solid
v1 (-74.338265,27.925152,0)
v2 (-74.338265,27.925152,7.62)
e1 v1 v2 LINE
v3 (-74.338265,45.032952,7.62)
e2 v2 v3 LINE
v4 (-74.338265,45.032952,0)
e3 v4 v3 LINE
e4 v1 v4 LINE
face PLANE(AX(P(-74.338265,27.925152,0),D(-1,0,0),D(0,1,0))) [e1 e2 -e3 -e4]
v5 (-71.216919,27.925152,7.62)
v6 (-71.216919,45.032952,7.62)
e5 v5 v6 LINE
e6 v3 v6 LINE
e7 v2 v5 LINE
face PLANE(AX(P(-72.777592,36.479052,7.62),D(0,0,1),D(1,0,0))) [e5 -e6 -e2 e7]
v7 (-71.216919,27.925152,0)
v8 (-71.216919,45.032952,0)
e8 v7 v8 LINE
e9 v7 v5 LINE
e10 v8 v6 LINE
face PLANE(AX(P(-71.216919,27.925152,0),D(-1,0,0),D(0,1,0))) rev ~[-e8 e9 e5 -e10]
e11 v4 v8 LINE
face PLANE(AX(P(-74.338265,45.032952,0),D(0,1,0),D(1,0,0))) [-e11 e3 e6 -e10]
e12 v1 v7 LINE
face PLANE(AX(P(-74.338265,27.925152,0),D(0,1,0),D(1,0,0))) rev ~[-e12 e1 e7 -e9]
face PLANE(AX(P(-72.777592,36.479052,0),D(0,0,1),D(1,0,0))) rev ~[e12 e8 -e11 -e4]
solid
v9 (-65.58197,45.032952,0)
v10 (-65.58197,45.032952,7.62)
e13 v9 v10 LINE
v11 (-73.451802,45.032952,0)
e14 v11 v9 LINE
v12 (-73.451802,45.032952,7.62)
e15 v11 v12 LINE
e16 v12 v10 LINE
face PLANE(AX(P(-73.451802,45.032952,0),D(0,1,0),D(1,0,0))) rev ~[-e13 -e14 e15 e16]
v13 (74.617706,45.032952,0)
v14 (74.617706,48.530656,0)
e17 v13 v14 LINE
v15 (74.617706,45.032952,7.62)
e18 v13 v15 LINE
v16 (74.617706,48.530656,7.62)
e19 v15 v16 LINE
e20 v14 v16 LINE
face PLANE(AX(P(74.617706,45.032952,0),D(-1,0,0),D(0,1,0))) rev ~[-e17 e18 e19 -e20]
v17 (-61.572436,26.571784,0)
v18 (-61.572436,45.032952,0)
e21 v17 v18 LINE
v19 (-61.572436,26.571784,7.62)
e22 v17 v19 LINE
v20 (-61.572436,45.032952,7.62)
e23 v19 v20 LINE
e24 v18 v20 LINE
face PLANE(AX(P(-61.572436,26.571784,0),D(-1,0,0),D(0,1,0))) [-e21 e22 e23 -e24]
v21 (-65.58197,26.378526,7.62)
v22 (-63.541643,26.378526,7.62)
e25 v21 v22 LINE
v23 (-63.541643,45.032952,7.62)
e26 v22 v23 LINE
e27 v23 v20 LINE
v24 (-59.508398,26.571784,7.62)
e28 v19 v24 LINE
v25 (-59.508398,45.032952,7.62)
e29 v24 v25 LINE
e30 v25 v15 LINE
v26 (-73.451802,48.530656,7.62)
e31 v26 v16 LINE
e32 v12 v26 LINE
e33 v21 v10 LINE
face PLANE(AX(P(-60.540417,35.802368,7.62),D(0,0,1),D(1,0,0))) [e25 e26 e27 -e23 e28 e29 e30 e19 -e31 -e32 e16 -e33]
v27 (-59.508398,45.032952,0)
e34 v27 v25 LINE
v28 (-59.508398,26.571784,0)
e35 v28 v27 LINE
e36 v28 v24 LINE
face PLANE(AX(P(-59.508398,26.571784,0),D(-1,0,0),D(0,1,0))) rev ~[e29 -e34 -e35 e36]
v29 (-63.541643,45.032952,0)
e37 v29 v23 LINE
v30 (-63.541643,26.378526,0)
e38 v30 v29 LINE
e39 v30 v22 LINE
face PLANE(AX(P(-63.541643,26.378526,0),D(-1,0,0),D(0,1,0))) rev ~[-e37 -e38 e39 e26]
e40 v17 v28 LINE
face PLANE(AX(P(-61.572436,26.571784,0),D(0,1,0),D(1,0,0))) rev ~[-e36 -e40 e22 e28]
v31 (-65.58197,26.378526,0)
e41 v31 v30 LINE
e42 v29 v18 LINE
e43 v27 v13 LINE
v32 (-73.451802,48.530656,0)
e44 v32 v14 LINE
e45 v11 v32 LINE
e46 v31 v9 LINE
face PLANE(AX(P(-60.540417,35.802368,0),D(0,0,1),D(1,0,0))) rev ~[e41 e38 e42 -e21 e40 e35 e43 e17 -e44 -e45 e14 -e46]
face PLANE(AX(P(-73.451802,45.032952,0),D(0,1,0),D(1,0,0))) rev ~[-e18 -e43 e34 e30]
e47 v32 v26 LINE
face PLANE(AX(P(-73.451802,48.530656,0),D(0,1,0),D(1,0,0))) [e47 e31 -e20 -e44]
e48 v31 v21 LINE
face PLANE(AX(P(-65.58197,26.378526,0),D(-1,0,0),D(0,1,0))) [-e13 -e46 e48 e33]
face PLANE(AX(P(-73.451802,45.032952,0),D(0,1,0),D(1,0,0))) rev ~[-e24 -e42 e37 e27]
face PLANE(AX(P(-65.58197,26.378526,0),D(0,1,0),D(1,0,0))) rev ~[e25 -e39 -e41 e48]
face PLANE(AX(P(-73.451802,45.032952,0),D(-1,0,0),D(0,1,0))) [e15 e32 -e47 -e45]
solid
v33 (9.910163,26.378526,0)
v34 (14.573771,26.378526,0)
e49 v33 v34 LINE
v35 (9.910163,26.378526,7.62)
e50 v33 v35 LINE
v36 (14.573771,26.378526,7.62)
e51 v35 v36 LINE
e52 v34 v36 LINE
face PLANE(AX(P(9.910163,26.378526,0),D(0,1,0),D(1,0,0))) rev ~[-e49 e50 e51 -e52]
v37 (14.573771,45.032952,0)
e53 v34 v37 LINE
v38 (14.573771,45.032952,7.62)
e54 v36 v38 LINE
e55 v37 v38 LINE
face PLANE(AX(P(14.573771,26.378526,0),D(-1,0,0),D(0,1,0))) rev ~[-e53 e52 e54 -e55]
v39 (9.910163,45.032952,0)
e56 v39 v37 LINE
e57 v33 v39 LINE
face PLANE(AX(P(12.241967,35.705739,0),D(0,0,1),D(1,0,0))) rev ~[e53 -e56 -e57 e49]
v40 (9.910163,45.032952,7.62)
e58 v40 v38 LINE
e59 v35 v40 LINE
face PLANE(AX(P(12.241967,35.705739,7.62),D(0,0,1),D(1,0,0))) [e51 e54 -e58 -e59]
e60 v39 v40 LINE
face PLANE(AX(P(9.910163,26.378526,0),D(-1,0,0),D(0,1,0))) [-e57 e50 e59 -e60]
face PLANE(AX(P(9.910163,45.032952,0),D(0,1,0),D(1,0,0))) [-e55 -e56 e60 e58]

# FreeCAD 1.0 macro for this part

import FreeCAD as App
import Part
import Sketcher

V = App.Vector
Q = App.Units.Quantity

doc = App.newDocument("Part")
body = doc.addObject("PartDesign::Body", "Body")

# Sketch on XY plane
sketch1 = body.newObject("Sketcher::SketchObject", "Sketch")
sketch1.AttachmentSupport = (doc.getObject("XY_Plane"), [""])
sketch1.MapMode = "FlatFace"
sketch1.addGeometry([
    Part.LineSegment(V(-73.451802, 48.530656, 0), V(-73.451802, 45.032952, 0)),
    Part.LineSegment(V(-73.451802, 45.032952, 0), V(74.617706, 45.032952, 0)),
    Part.LineSegment(V(74.617706, 45.032952, 0), V(74.617706, 48.530656, 0)),
    Part.LineSegment(V(74.617706, 48.530656, 0), V(-73.451802, 48.530656, 0)),
], False)
sketch1.addConstraint([
    Sketcher.Constraint("Coincident", 0, 2, 1, 1),
    Sketcher.Constraint("Coincident", 1, 2, 2, 1),
    Sketcher.Constraint("Coincident", 2, 2, 3, 1),
    Sketcher.Constraint("Coincident", 3, 2, 0, 1),
    Sketcher.Constraint("Vertical", 0),
    Sketcher.Constraint("Horizontal", 1),
    Sketcher.Constraint("Vertical", 2),
    Sketcher.Constraint("Horizontal", 3),
    Sketcher.Constraint("DistanceX", 0, 2, -1, 1, Q("73.451802 mm")),
    Sketcher.Constraint("DistanceX", 1, 1, 1, 2, Q("148.069508 mm")),
    Sketcher.Constraint("DistanceY", 0, 2, 0, 1, Q("3.497705 mm")),
    Sketcher.Constraint("DistanceY", -1, 1, 0, 2, Q("45.032952 mm")),
])
pad1 = body.newObject("PartDesign::Pad", "Pad")
pad1.Profile = sketch1
pad1.Length = Q("0.3 in")

# Sketch on XY plane
sketch2 = body.newObject("Sketcher::SketchObject", "Sketch001")
sketch2.AttachmentSupport = (doc.getObject("XY_Plane"), [""])
sketch2.MapMode = "FlatFace"
sketch2.addGeometry([
    Part.LineSegment(V(-65.58197, 45.032952, 0), V(-65.58197, 26.378526, 0)),
    Part.LineSegment(V(-65.58197, 26.378526, 0), V(-63.541643, 26.378526, 0)),
    Part.LineSegment(V(-63.541643, 26.378526, 0), V(-63.541643, 45.032952, 0)),
    Part.LineSegment(V(-63.541643, 45.032952, 0), V(-65.58197, 45.032952, 0)),
], False)
sketch2.addConstraint([
    Sketcher.Constraint("Coincident", 0, 2, 1, 1),
    Sketcher.Constraint("Coincident", 1, 2, 2, 1),
    Sketcher.Constraint("Coincident", 2, 2, 3, 1),
    Sketcher.Constraint("Coincident", 3, 2, 0, 1),
    Sketcher.Constraint("Vertical", 0),
    Sketcher.Constraint("Horizontal", 1),
    Sketcher.Constraint("Vertical", 2),
    Sketcher.Constraint("Horizontal", 3),
    Sketcher.Constraint("DistanceX", 1, 1, 1, 2, Q("2.040327 mm")),
    Sketcher.Constraint("DistanceY", 0, 2, 0, 1, Q("18.654425 mm")),
    Sketcher.Constraint("DistanceX", 0, 2, -1, 1, Q("65.58197 mm")),
    Sketcher.Constraint("DistanceY", -1, 1, 2, 2, Q("45.032952 mm")),
])
pad2 = body.newObject("PartDesign::Pad", "Pad001")
pad2.Profile = sketch2
pad2.Length = Q("0.3 in")

# Sketch on XY plane
sketch3 = body.newObject("Sketcher::SketchObject", "Sketch002")
sketch3.AttachmentSupport = (doc.getObject("XY_Plane"), [""])
sketch3.MapMode = "FlatFace"
sketch3.addGeometry([
    Part.LineSegment(V(-61.572436, 45.032952, 0), V(-61.572436, 26.571784, 0)),
    Part.LineSegment(V(-61.572436, 26.571784, 0), V(-59.508398, 26.571784, 0)),
    Part.LineSegment(V(-59.508398, 26.571784, 0), V(-59.508398, 45.032952, 0)),
    Part.LineSegment(V(-59.508398, 45.032952, 0), V(-61.572436, 45.032952, 0)),
], False)
sketch3.addConstraint([
    Sketcher.Constraint("Coincident", 0, 2, 1, 1),
    Sketcher.Constraint("Coincident", 1, 2, 2, 1),
    Sketcher.Constraint("Coincident", 2, 2, 3, 1),
    Sketcher.Constraint("Coincident", 3, 2, 0, 1),
    Sketcher.Constraint("Vertical", 0),
    Sketcher.Constraint("Horizontal", 1),
    Sketcher.Constraint("Vertical", 2),
    Sketcher.Constraint("Horizontal", 3),
    Sketcher.Constraint("DistanceX", 1, 1, 1, 2, Q("2.064038 mm")),
    Sketcher.Constraint("DistanceY", 0, 2, 0, 1, Q("18.461168 mm")),
    Sketcher.Constraint("DistanceX", 0, 2, -1, 1, Q("61.572436 mm")),
    Sketcher.Constraint("DistanceY", -1, 1, 0, 2, Q("26.571784 mm")),
])
pad3 = body.newObject("PartDesign::Pad", "Pad002")
pad3.Profile = sketch3
pad3.Length = Q("0.3 in")
body2 = doc.addObject("PartDesign::Body", "Body001")

# Sketch on XY plane
sketch4 = body2.newObject("Sketcher::SketchObject", "Sketch003")
sketch4.AttachmentSupport = (doc.getObject("XY_Plane001"), [""])
sketch4.MapMode = "FlatFace"
sketch4.addGeometry([
    Part.LineSegment(V(-74.338265, 45.032952, 0), V(-74.338265, 27.925152, 0)),
    Part.LineSegment(V(-74.338265, 27.925152, 0), V(-71.216919, 27.925152, 0)),
    Part.LineSegment(V(-71.216919, 27.925152, 0), V(-71.216919, 45.032952, 0)),
    Part.LineSegment(V(-71.216919, 45.032952, 0), V(-74.338265, 45.032952, 0)),
], False)
sketch4.addConstraint([
    Sketcher.Constraint("Coincident", 0, 2, 1, 1),
    Sketcher.Constraint("Coincident", 1, 2, 2, 1),
    Sketcher.Constraint("Coincident", 2, 2, 3, 1),
    Sketcher.Constraint("Coincident", 3, 2, 0, 1),
    Sketcher.Constraint("Vertical", 0),
    Sketcher.Constraint("Horizontal", 1),
    Sketcher.Constraint("Vertical", 2),
    Sketcher.Constraint("Horizontal", 3),
    Sketcher.Constraint("DistanceY", 0, 2, 0, 1, Q("17.1078 mm")),
    Sketcher.Constraint("DistanceX", 1, 1, 1, 2, Q("3.121346 mm")),
    Sketcher.Constraint("DistanceX", 1, 2, -1, 1, Q("71.216919 mm")),
    Sketcher.Constraint("DistanceY", -1, 1, 0, 2, Q("27.925152 mm")),
])
pad4 = body2.newObject("PartDesign::Pad", "Pad003")
pad4.Profile = sketch4
pad4.Length = Q("0.3 in")
body3 = doc.addObject("PartDesign::Body", "Body002")

# Sketch on XY plane
sketch5 = body3.newObject("Sketcher::SketchObject", "Sketch004")
sketch5.AttachmentSupport = (doc.getObject("XY_Plane002"), [""])
sketch5.MapMode = "FlatFace"
sketch5.addGeometry([
    Part.LineSegment(V(9.910163, 45.032952, 0), V(9.910163, 26.378526, 0)),
    Part.LineSegment(V(9.910163, 26.378526, 0), V(14.573771, 26.378526, 0)),
    Part.LineSegment(V(14.573771, 26.378526, 0), V(14.573771, 45.032952, 0)),
    Part.LineSegment(V(14.573771, 45.032952, 0), V(9.910163, 45.032952, 0)),
], False)
sketch5.addConstraint([
    Sketcher.Constraint("Coincident", 0, 2, 1, 1),
    Sketcher.Constraint("Coincident", 1, 2, 2, 1),
    Sketcher.Constraint("Coincident", 2, 2, 3, 1),
    Sketcher.Constraint("Coincident", 3, 2, 0, 1),
    Sketcher.Constraint("Vertical", 0),
    Sketcher.Constraint("Horizontal", 1),
    Sketcher.Constraint("Vertical", 2),
    Sketcher.Constraint("Horizontal", 3),
    Sketcher.Constraint("DistanceX", 1, 1, 1, 2, Q("4.663609 mm")),
    Sketcher.Constraint("DistanceY", 0, 2, 0, 1, Q("18.654425 mm")),
    Sketcher.Constraint("DistanceX", -1, 1, 1, 2, Q("14.573771 mm")),
    Sketcher.Constraint("DistanceY", -1, 1, 2, 2, Q("45.032952 mm")),
])
pad5 = body3.newObject("PartDesign::Pad", "Pad004")
pad5.Profile = sketch5
pad5.Length = Q("0.3 in")

doc.recompute()
